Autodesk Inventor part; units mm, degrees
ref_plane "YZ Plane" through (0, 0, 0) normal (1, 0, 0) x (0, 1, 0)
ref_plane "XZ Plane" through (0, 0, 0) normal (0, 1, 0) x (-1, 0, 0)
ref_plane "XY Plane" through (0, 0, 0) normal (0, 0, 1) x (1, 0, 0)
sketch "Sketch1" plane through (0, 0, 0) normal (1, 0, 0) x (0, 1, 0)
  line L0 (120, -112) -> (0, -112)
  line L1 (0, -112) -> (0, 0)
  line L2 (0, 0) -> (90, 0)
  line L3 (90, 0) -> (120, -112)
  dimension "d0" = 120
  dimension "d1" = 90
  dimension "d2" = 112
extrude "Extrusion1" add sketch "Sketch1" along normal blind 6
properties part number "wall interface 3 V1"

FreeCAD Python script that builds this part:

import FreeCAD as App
import Part
import Sketcher

V = App.Vector
Q = App.Units.Quantity


def add_polygon(sketch, points):
    """Adds a closed chain of lines whose ends are joined by coincident constraints."""
    first, n = sketch.GeometryCount, len(points)
    for a, b in zip(points, points[1:] + points[:1]):
        sketch.addGeometry(Part.LineSegment(App.Vector(*a, 0), App.Vector(*b, 0)), False)
    for i in range(n):
        sketch.addConstraint(Sketcher.Constraint("Coincident", first + i, 2, first + (i + 1) % n, 1))

doc = App.newDocument("Part")
body = doc.addObject("PartDesign::Body", "Body")

# Sketch on YZ plane
sketch1 = doc.addObject("Sketcher::SketchObject", "Sketch")
body.addObject(sketch1)
sketch1.AttachmentSupport = (doc.YZ_Plane, [""])
sketch1.MapMode = "FlatFace"
add_polygon(sketch1, [(0, -112), (120, -112), (90, 0), (0, 0)])  # lines 0-3
sketch1.addConstraint([
    Sketcher.Constraint("Horizontal", 0),
    Sketcher.Constraint("Horizontal", 2),
    Sketcher.Constraint("Vertical", 3),
    Sketcher.Constraint("Coincident", 2, 2, -1, 1),
    Sketcher.Constraint("DistanceX", 0, 1, 0, 2, Q("120 mm")),
    Sketcher.Constraint("DistanceX", 2, 2, 2, 1, Q("90 mm")),
    Sketcher.Constraint("DistanceY", 3, 2, 3, 1, Q("112 mm")),
])
pad1 = doc.addObject("PartDesign::Pad", "Pad")
body.addObject(pad1)
pad1.Profile = sketch1
pad1.Length = 6

doc.recompute()
